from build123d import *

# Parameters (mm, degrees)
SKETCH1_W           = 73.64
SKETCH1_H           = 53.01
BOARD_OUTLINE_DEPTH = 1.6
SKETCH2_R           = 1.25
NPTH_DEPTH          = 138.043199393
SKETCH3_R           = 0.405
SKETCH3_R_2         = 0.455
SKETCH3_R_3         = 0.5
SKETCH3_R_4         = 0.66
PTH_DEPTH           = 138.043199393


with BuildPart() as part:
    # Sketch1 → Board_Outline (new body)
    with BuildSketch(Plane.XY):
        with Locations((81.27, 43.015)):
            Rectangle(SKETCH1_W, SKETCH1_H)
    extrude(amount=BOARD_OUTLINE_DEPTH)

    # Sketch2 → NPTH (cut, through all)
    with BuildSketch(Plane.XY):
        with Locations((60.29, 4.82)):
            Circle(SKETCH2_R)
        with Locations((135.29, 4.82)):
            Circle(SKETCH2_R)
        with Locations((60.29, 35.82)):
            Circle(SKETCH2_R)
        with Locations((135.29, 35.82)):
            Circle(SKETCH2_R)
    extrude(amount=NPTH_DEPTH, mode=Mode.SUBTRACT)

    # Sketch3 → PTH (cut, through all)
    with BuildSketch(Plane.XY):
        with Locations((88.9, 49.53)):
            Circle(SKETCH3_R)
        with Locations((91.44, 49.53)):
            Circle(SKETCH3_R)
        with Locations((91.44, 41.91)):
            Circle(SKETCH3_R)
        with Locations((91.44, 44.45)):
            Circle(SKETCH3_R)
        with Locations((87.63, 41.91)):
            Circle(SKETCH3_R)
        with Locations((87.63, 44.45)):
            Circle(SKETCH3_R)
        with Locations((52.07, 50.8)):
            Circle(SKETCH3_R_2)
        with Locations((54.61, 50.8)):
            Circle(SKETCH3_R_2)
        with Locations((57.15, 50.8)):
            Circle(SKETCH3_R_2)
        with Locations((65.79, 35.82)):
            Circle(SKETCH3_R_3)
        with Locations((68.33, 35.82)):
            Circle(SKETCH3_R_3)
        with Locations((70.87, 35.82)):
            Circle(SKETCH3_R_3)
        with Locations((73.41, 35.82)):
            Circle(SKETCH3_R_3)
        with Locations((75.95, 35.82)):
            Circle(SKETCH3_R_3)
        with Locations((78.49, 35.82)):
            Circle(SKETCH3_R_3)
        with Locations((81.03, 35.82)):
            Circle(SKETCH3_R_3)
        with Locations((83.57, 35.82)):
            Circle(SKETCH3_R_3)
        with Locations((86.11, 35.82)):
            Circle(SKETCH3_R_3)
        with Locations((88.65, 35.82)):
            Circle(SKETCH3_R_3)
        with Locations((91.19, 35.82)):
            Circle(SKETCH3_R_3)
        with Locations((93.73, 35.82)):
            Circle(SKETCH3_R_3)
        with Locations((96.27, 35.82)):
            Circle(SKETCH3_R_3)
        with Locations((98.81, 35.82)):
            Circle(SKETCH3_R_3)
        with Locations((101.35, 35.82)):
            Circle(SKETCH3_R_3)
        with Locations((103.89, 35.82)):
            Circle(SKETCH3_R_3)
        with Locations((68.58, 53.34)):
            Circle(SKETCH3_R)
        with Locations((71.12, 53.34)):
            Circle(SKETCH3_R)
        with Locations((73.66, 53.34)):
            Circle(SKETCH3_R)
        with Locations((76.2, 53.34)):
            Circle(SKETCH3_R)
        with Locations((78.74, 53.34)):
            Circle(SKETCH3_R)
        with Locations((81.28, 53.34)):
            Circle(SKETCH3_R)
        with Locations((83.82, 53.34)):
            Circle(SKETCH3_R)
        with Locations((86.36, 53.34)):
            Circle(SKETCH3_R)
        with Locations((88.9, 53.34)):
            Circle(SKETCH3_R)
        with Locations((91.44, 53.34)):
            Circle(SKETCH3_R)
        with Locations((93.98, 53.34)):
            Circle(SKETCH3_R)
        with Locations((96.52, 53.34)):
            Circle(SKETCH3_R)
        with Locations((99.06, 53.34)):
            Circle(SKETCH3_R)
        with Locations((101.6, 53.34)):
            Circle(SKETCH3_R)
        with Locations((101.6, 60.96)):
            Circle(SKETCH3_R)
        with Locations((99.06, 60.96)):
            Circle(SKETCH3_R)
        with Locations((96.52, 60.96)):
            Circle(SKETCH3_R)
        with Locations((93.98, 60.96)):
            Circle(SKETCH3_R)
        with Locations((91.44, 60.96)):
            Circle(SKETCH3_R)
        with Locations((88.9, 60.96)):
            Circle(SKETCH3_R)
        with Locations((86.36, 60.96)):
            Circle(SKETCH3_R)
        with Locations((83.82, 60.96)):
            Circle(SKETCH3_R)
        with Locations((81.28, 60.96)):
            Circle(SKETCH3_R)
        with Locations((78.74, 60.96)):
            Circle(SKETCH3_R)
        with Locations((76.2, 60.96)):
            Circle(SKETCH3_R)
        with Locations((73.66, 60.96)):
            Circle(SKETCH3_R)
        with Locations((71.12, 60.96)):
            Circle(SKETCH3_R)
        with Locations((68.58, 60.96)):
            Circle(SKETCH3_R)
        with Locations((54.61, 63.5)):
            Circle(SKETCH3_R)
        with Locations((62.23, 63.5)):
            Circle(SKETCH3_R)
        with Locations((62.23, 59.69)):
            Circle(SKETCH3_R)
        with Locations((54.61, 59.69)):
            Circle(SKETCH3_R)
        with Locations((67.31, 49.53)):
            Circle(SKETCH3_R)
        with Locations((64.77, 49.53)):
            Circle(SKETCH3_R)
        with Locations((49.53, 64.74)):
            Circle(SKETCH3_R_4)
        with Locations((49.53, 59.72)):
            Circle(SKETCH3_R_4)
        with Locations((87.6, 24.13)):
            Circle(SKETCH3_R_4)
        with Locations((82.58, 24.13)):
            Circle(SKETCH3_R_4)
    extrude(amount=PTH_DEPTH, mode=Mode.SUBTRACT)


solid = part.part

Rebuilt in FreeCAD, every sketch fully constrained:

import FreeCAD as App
import Part
import Sketcher
Q = App.Units.Quantity


def add_polygon(sketch, points):
    """Adds a closed chain of lines whose ends are joined by coincident constraints."""
    first, n = sketch.GeometryCount, len(points)
    for a, b in zip(points, points[1:] + points[:1]):
        sketch.addGeometry(Part.LineSegment(App.Vector(*a, 0), App.Vector(*b, 0)), False)
    for i in range(n):
        sketch.addConstraint(Sketcher.Constraint("Coincident", first + i, 2, first + (i + 1) % n, 1))

doc = App.newDocument("Part")
params = doc.addObject("Spreadsheet::Sheet", "Params")
for row, (alias, value) in enumerate([
    ("sketch1_width", "73.64 mm"),
    ("sketch1_height", "53.01 mm"),
    ("pad1_length", "1.6 mm"),
    ("sketch2_diameter", "2.5 mm"),
    ("sketch3_diameter", "1 mm"),
    ("sketch3_diameter2", "0.81 mm"),
    ("sketch3_diameter3", "0.91 mm"),
    ("sketch3_diameter4", "1.32 mm"),
], start=1):
    params.set(f"A{row}", alias)
    params.set(f"B{row}", "=" + value)
    params.setAlias(f"B{row}", alias)

body = doc.addObject("PartDesign::Body", "Body")

sketch1 = body.newObject("Sketcher::SketchObject", "Sketch")
sketch1.AttachmentSupport = (doc.getObject("XY_Plane"), [""])
sketch1.MapMode = "FlatFace"
add_polygon(sketch1, [(44, 70), (44, 17), (118, 17), (118, 70)])
sketch1.addConstraint([
    Sketcher.Constraint("Vertical", 0),
    Sketcher.Constraint("Horizontal", 1),
    Sketcher.Constraint("Vertical", 2),
    Sketcher.Constraint("Horizontal", 3),
    Sketcher.Constraint("DistanceX", 1, 1, 1, 2, Q("73.64 mm")),
    Sketcher.Constraint("DistanceY", 0, 2, 0, 1, Q("53.01 mm")),
    Sketcher.Constraint("DistanceX", -1, 1, 0, 2, Q("44.45 mm")),
    Sketcher.Constraint("DistanceY", -1, 1, 0, 2, Q("16.51 mm")),
])
sketch1.setExpression("Constraints[8]", "Params.sketch1_width")
sketch1.setExpression("Constraints[9]", "Params.sketch1_height")
pad1 = body.newObject("PartDesign::Pad", "Pad")
pad1.Profile = sketch1
pad1.setExpression("Length", "Params.pad1_length")

sketch2 = body.newObject("Sketcher::SketchObject", "Sketch001")
sketch2.AttachmentSupport = (doc.getObject("XY_Plane"), [""])
sketch2.MapMode = "FlatFace"
sketch2.addGeometry([
    Part.Circle(App.Vector(60.3, 4.8, 0), App.Vector(0, 0, 1), 1.2),
    Part.Circle(App.Vector(135.3, 4.8, 0), App.Vector(0, 0, 1), 1.2),
    Part.Circle(App.Vector(60.3, 35.8, 0), App.Vector(0, 0, 1), 1.2),
    Part.Circle(App.Vector(135.3, 35.8, 0), App.Vector(0, 0, 1), 1.2),
], False)
sketch2.addConstraint([
    Sketcher.Constraint("Equal", 0, 1),
    Sketcher.Constraint("Equal", 1, 2),
    Sketcher.Constraint("Equal", 2, 3),
    Sketcher.Constraint("Horizontal", 0, 3, 1, 3),
    Sketcher.Constraint("Horizontal", 2, 3, 3, 3),
    Sketcher.Constraint("Vertical", 0, 3, 2, 3),
    Sketcher.Constraint("Vertical", 1, 3, 3, 3),
    Sketcher.Constraint("Diameter", 0, Q("2.5 mm")),
    Sketcher.Constraint("DistanceX", 0, 3, 1, 3, Q("75 mm")),
    Sketcher.Constraint("DistanceY", 0, 3, 2, 3, Q("31 mm")),
    Sketcher.Constraint("DistanceX", -1, 1, 0, 3, Q("60.29 mm")),
    Sketcher.Constraint("DistanceY", -1, 1, 0, 3, Q("4.82 mm")),
])
sketch2.setExpression("Constraints[7]", "Params.sketch2_diameter")
pocket1 = body.newObject("PartDesign::Pocket", "Pocket")
pocket1.Profile = sketch2
pocket1.Type = "ThroughAll"
pocket1.Reversed = True

sketch3 = body.newObject("Sketcher::SketchObject", "Sketch002")
sketch3.AttachmentSupport = (doc.getObject("XY_Plane"), [""])
sketch3.MapMode = "FlatFace"
sketch3.addGeometry([
    Part.Circle(App.Vector(88.9, 49.53, 0), App.Vector(0, 0, 1), 0.41),
    Part.Circle(App.Vector(91.44, 49.53, 0), App.Vector(0, 0, 1), 0.41),
    Part.Circle(App.Vector(91.44, 41.91, 0), App.Vector(0, 0, 1), 0.41),
    Part.Circle(App.Vector(91.44, 44.45, 0), App.Vector(0, 0, 1), 0.41),
    Part.Circle(App.Vector(87.63, 41.91, 0), App.Vector(0, 0, 1), 0.41),
    Part.Circle(App.Vector(87.63, 44.45, 0), App.Vector(0, 0, 1), 0.41),
    Part.Circle(App.Vector(52.07, 50.8, 0), App.Vector(0, 0, 1), 0.46),
    Part.Circle(App.Vector(54.61, 50.8, 0), App.Vector(0, 0, 1), 0.46),
    Part.Circle(App.Vector(57.15, 50.8, 0), App.Vector(0, 0, 1), 0.46),
    Part.Circle(App.Vector(65.79, 35.82, 0), App.Vector(0, 0, 1), 0.5),
    Part.Circle(App.Vector(68.33, 35.82, 0), App.Vector(0, 0, 1), 0.5),
    Part.Circle(App.Vector(70.87, 35.82, 0), App.Vector(0, 0, 1), 0.5),
    Part.Circle(App.Vector(73.41, 35.82, 0), App.Vector(0, 0, 1), 0.5),
    Part.Circle(App.Vector(75.95, 35.82, 0), App.Vector(0, 0, 1), 0.5),
    Part.Circle(App.Vector(78.49, 35.82, 0), App.Vector(0, 0, 1), 0.5),
    Part.Circle(App.Vector(81.03, 35.82, 0), App.Vector(0, 0, 1), 0.5),
    Part.Circle(App.Vector(83.57, 35.82, 0), App.Vector(0, 0, 1), 0.5),
    Part.Circle(App.Vector(86.11, 35.82, 0), App.Vector(0, 0, 1), 0.5),
    Part.Circle(App.Vector(88.65, 35.82, 0), App.Vector(0, 0, 1), 0.5),
    Part.Circle(App.Vector(91.19, 35.82, 0), App.Vector(0, 0, 1), 0.5),
    Part.Circle(App.Vector(93.73, 35.82, 0), App.Vector(0, 0, 1), 0.5),
    Part.Circle(App.Vector(96.27, 35.82, 0), App.Vector(0, 0, 1), 0.5),
    Part.Circle(App.Vector(98.81, 35.82, 0), App.Vector(0, 0, 1), 0.5),
    Part.Circle(App.Vector(101.35, 35.82, 0), App.Vector(0, 0, 1), 0.5),
    Part.Circle(App.Vector(103.89, 35.82, 0), App.Vector(0, 0, 1), 0.5),
    Part.Circle(App.Vector(68.58, 53.34, 0), App.Vector(0, 0, 1), 0.41),
    Part.Circle(App.Vector(71.12, 53.34, 0), App.Vector(0, 0, 1), 0.41),
    Part.Circle(App.Vector(73.66, 53.34, 0), App.Vector(0, 0, 1), 0.41),
    Part.Circle(App.Vector(76.2, 53.34, 0), App.Vector(0, 0, 1), 0.41),
    Part.Circle(App.Vector(78.74, 53.34, 0), App.Vector(0, 0, 1), 0.41),
    Part.Circle(App.Vector(81.28, 53.34, 0), App.Vector(0, 0, 1), 0.41),
    Part.Circle(App.Vector(83.82, 53.34, 0), App.Vector(0, 0, 1), 0.41),
    Part.Circle(App.Vector(86.36, 53.34, 0), App.Vector(0, 0, 1), 0.41),
    Part.Circle(App.Vector(88.9, 53.34, 0), App.Vector(0, 0, 1), 0.41),
    Part.Circle(App.Vector(91.44, 53.34, 0), App.Vector(0, 0, 1), 0.41),
    Part.Circle(App.Vector(93.98, 53.34, 0), App.Vector(0, 0, 1), 0.41),
    Part.Circle(App.Vector(96.52, 53.34, 0), App.Vector(0, 0, 1), 0.41),
    Part.Circle(App.Vector(99.06, 53.34, 0), App.Vector(0, 0, 1), 0.41),
    Part.Circle(App.Vector(101.6, 53.34, 0), App.Vector(0, 0, 1), 0.41),
    Part.Circle(App.Vector(101.6, 60.96, 0), App.Vector(0, 0, 1), 0.41),
    Part.Circle(App.Vector(99.06, 60.96, 0), App.Vector(0, 0, 1), 0.41),
    Part.Circle(App.Vector(96.52, 60.96, 0), App.Vector(0, 0, 1), 0.41),
    Part.Circle(App.Vector(93.98, 60.96, 0), App.Vector(0, 0, 1), 0.41),
    Part.Circle(App.Vector(91.44, 60.96, 0), App.Vector(0, 0, 1), 0.41),
    Part.Circle(App.Vector(88.9, 60.96, 0), App.Vector(0, 0, 1), 0.41),
    Part.Circle(App.Vector(86.36, 60.96, 0), App.Vector(0, 0, 1), 0.41),
    Part.Circle(App.Vector(83.82, 60.96, 0), App.Vector(0, 0, 1), 0.41),
    Part.Circle(App.Vector(81.28, 60.96, 0), App.Vector(0, 0, 1), 0.41),
    Part.Circle(App.Vector(78.74, 60.96, 0), App.Vector(0, 0, 1), 0.41),
    Part.Circle(App.Vector(76.2, 60.96, 0), App.Vector(0, 0, 1), 0.41),
    Part.Circle(App.Vector(73.66, 60.96, 0), App.Vector(0, 0, 1), 0.41),
    Part.Circle(App.Vector(71.12, 60.96, 0), App.Vector(0, 0, 1), 0.41),
    Part.Circle(App.Vector(68.58, 60.96, 0), App.Vector(0, 0, 1), 0.41),
    Part.Circle(App.Vector(54.61, 63.5, 0), App.Vector(0, 0, 1), 0.41),
    Part.Circle(App.Vector(62.23, 63.5, 0), App.Vector(0, 0, 1), 0.41),
    Part.Circle(App.Vector(62.23, 59.69, 0), App.Vector(0, 0, 1), 0.41),
    Part.Circle(App.Vector(54.61, 59.69, 0), App.Vector(0, 0, 1), 0.41),
    Part.Circle(App.Vector(67.31, 49.53, 0), App.Vector(0, 0, 1), 0.41),
    Part.Circle(App.Vector(64.77, 49.53, 0), App.Vector(0, 0, 1), 0.41),
    Part.Circle(App.Vector(49.53, 64.74, 0), App.Vector(0, 0, 1), 0.66),
    Part.Circle(App.Vector(49.53, 59.72, 0), App.Vector(0, 0, 1), 0.66),
    Part.Circle(App.Vector(87.6, 24.13, 0), App.Vector(0, 0, 1), 0.66),
    Part.Circle(App.Vector(82.58, 24.13, 0), App.Vector(0, 0, 1), 0.66),
], False)
sketch3.addConstraint([
    Sketcher.Constraint("Equal", 0, 1),
    Sketcher.Constraint("Equal", 1, 2),
    Sketcher.Constraint("Equal", 2, 3),
    Sketcher.Constraint("Equal", 3, 4),
    Sketcher.Constraint("Equal", 4, 5),
    Sketcher.Constraint("Equal", 6, 7),
    Sketcher.Constraint("Equal", 7, 8),
    Sketcher.Constraint("Equal", 9, 10),
    Sketcher.Constraint("Equal", 10, 11),
    Sketcher.Constraint("Equal", 11, 12),
    Sketcher.Constraint("Equal", 12, 13),
    Sketcher.Constraint("Equal", 13, 14),
    Sketcher.Constraint("Equal", 14, 15),
    Sketcher.Constraint("Equal", 15, 16),
    Sketcher.Constraint("Equal", 16, 17),
    Sketcher.Constraint("Equal", 17, 18),
    Sketcher.Constraint("Equal", 18, 19),
    Sketcher.Constraint("Equal", 19, 20),
    Sketcher.Constraint("Equal", 20, 21),
    Sketcher.Constraint("Equal", 21, 22),
    Sketcher.Constraint("Equal", 22, 23),
    Sketcher.Constraint("Equal", 23, 24),
    Sketcher.Constraint("Equal", 5, 25),
    Sketcher.Constraint("Equal", 25, 26),
    Sketcher.Constraint("Equal", 26, 27),
    Sketcher.Constraint("Equal", 27, 28),
    Sketcher.Constraint("Equal", 28, 29),
    Sketcher.Constraint("Equal", 29, 30),
    Sketcher.Constraint("Equal", 30, 31),
    Sketcher.Constraint("Equal", 31, 32),
    Sketcher.Constraint("Equal", 32, 33),
    Sketcher.Constraint("Equal", 33, 34),
    Sketcher.Constraint("Equal", 34, 35),
    Sketcher.Constraint("Equal", 35, 36),
    Sketcher.Constraint("Equal", 36, 37),
    Sketcher.Constraint("Equal", 37, 38),
    Sketcher.Constraint("Equal", 38, 39),
    Sketcher.Constraint("Equal", 39, 40),
    Sketcher.Constraint("Equal", 40, 41),
    Sketcher.Constraint("Equal", 41, 42),
    Sketcher.Constraint("Equal", 42, 43),
    Sketcher.Constraint("Equal", 43, 44),
    Sketcher.Constraint("Equal", 44, 45),
    Sketcher.Constraint("Equal", 45, 46),
    Sketcher.Constraint("Equal", 46, 47),
    Sketcher.Constraint("Equal", 47, 48),
    Sketcher.Constraint("Equal", 48, 49),
    Sketcher.Constraint("Equal", 49, 50),
    Sketcher.Constraint("Equal", 50, 51),
    Sketcher.Constraint("Equal", 51, 52),
    Sketcher.Constraint("Equal", 52, 53),
    Sketcher.Constraint("Equal", 53, 54),
    Sketcher.Constraint("Equal", 54, 55),
    Sketcher.Constraint("Equal", 55, 56),
    Sketcher.Constraint("Equal", 56, 57),
    Sketcher.Constraint("Equal", 57, 58),
    Sketcher.Constraint("Equal", 59, 60),
    Sketcher.Constraint("Equal", 60, 61),
    Sketcher.Constraint("Equal", 61, 62),
    Sketcher.Constraint("Horizontal", 0, 3, 1, 3),
    Sketcher.Constraint("Horizontal", 2, 3, 4, 3),
    Sketcher.Constraint("Horizontal", 3, 3, 5, 3),
    Sketcher.Constraint("Horizontal", 6, 3, 7, 3),
    Sketcher.Constraint("Horizontal", 7, 3, 8, 3),
    Sketcher.Constraint("Horizontal", 9, 3, 10, 3),
    Sketcher.Constraint("Horizontal", 10, 3, 11, 3),
    Sketcher.Constraint("Horizontal", 11, 3, 12, 3),
    Sketcher.Constraint("Horizontal", 12, 3, 13, 3),
    Sketcher.Constraint("Horizontal", 13, 3, 14, 3),
    Sketcher.Constraint("Horizontal", 14, 3, 15, 3),
    Sketcher.Constraint("Horizontal", 15, 3, 16, 3),
    Sketcher.Constraint("Horizontal", 16, 3, 17, 3),
    Sketcher.Constraint("Horizontal", 17, 3, 18, 3),
    Sketcher.Constraint("Horizontal", 18, 3, 19, 3),
    Sketcher.Constraint("Horizontal", 19, 3, 20, 3),
    Sketcher.Constraint("Horizontal", 20, 3, 21, 3),
    Sketcher.Constraint("Horizontal", 21, 3, 22, 3),
    Sketcher.Constraint("Horizontal", 22, 3, 23, 3),
    Sketcher.Constraint("Horizontal", 23, 3, 24, 3),
    Sketcher.Constraint("Horizontal", 25, 3, 26, 3),
    Sketcher.Constraint("Horizontal", 26, 3, 27, 3),
    Sketcher.Constraint("Horizontal", 27, 3, 28, 3),
    Sketcher.Constraint("Horizontal", 28, 3, 29, 3),
    Sketcher.Constraint("Horizontal", 29, 3, 30, 3),
    Sketcher.Constraint("Horizontal", 30, 3, 31, 3),
    Sketcher.Constraint("Horizontal", 31, 3, 32, 3),
    Sketcher.Constraint("Horizontal", 32, 3, 33, 3),
    Sketcher.Constraint("Horizontal", 33, 3, 34, 3),
    Sketcher.Constraint("Horizontal", 34, 3, 35, 3),
    Sketcher.Constraint("Horizontal", 35, 3, 36, 3),
    Sketcher.Constraint("Horizontal", 36, 3, 37, 3),
    Sketcher.Constraint("Horizontal", 37, 3, 38, 3),
    Sketcher.Constraint("Horizontal", 39, 3, 40, 3),
    Sketcher.Constraint("Horizontal", 40, 3, 41, 3),
    Sketcher.Constraint("Horizontal", 41, 3, 42, 3),
    Sketcher.Constraint("Horizontal", 42, 3, 43, 3),
    Sketcher.Constraint("Horizontal", 43, 3, 44, 3),
    Sketcher.Constraint("Horizontal", 44, 3, 45, 3),
    Sketcher.Constraint("Horizontal", 45, 3, 46, 3),
    Sketcher.Constraint("Horizontal", 46, 3, 47, 3),
    Sketcher.Constraint("Horizontal", 47, 3, 48, 3),
    Sketcher.Constraint("Horizontal", 48, 3, 49, 3),
    Sketcher.Constraint("Horizontal", 49, 3, 50, 3),
    Sketcher.Constraint("Horizontal", 50, 3, 51, 3),
    Sketcher.Constraint("Horizontal", 51, 3, 52, 3),
    Sketcher.Constraint("Horizontal", 53, 3, 54, 3),
    Sketcher.Constraint("Horizontal", 55, 3, 56, 3),
    Sketcher.Constraint("Horizontal", 1, 3, 57, 3),
    Sketcher.Constraint("Horizontal", 57, 3, 58, 3),
    Sketcher.Constraint("Horizontal", 61, 3, 62, 3),
    Sketcher.Constraint("Vertical", 1, 3, 2, 3),
    Sketcher.Constraint("Vertical", 2, 3, 3, 3),
    Sketcher.Constraint("Vertical", 4, 3, 5, 3),
    Sketcher.Constraint("Vertical", 0, 3, 33, 3),
    Sketcher.Constraint("Vertical", 3, 3, 34, 3),
    Sketcher.Constraint("Vertical", 38, 3, 39, 3),
    Sketcher.Constraint("Vertical", 37, 3, 40, 3),
    Sketcher.Constraint("Vertical", 36, 3, 41, 3),
    Sketcher.Constraint("Vertical", 35, 3, 42, 3),
    Sketcher.Constraint("Vertical", 34, 3, 43, 3),
    Sketcher.Constraint("Vertical", 33, 3, 44, 3),
    Sketcher.Constraint("Vertical", 32, 3, 45, 3),
    Sketcher.Constraint("Vertical", 31, 3, 46, 3),
    Sketcher.Constraint("Vertical", 30, 3, 47, 3),
    Sketcher.Constraint("Vertical", 29, 3, 48, 3),
    Sketcher.Constraint("Vertical", 28, 3, 49, 3),
    Sketcher.Constraint("Vertical", 27, 3, 50, 3),
    Sketcher.Constraint("Vertical", 26, 3, 51, 3),
    Sketcher.Constraint("Vertical", 25, 3, 52, 3),
    Sketcher.Constraint("Vertical", 7, 3, 53, 3),
    Sketcher.Constraint("Vertical", 54, 3, 55, 3),
    Sketcher.Constraint("Vertical", 53, 3, 56, 3),
    Sketcher.Constraint("Vertical", 59, 3, 60, 3),
    Sketcher.Constraint("Diameter", 9, Q("1 mm")),
    Sketcher.Constraint("Diameter", 0, Q("0.81 mm")),
    Sketcher.Constraint("Diameter", 6, Q("0.91 mm")),
    Sketcher.Constraint("Diameter", 59, Q("1.32 mm")),
    Sketcher.Constraint("DistanceX", -1, 1, 0, 3, Q("88.9 mm")),
    Sketcher.Constraint("DistanceY", -1, 1, 6, 3, Q("50.8 mm")),
    Sketcher.Constraint("DistanceX", -1, 1, 28, 3, Q("76.2 mm")),
    Sketcher.Constraint("DistanceX", -1, 1, 38, 3, Q("101.6 mm")),
    Sketcher.Constraint("DistanceY", -1, 1, 53, 3, Q("63.5 mm")),
    Sketcher.Constraint("DistanceX", -1, 1, 61, 3, Q("87.6 mm")),
    Sketcher.Constraint("DistanceY", -1, 1, 0, 3, Q("49.53 mm")),
    Sketcher.Constraint("DistanceX", -1, 1, 1, 3, Q("91.44 mm")),
    Sketcher.Constraint("DistanceY", -1, 1, 2, 3, Q("41.91 mm")),
    Sketcher.Constraint("DistanceY", -1, 1, 3, 3, Q("44.45 mm")),
    Sketcher.Constraint("DistanceX", -1, 1, 4, 3, Q("87.63 mm")),
    Sketcher.Constraint("DistanceX", -1, 1, 6, 3, Q("52.07 mm")),
    Sketcher.Constraint("DistanceX", -1, 1, 7, 3, Q("54.61 mm")),
    Sketcher.Constraint("DistanceX", -1, 1, 8, 3, Q("57.15 mm")),
    Sketcher.Constraint("DistanceX", -1, 1, 9, 3, Q("65.79 mm")),
    Sketcher.Constraint("DistanceY", -1, 1, 9, 3, Q("35.82 mm")),
    Sketcher.Constraint("DistanceX", -1, 1, 10, 3, Q("68.33 mm")),
    Sketcher.Constraint("DistanceX", -1, 1, 11, 3, Q("70.87 mm")),
    Sketcher.Constraint("DistanceX", -1, 1, 12, 3, Q("73.41 mm")),
    Sketcher.Constraint("DistanceX", -1, 1, 13, 3, Q("75.95 mm")),
    Sketcher.Constraint("DistanceX", -1, 1, 14, 3, Q("78.49 mm")),
    Sketcher.Constraint("DistanceX", -1, 1, 15, 3, Q("81.03 mm")),
    Sketcher.Constraint("DistanceX", -1, 1, 16, 3, Q("83.57 mm")),
    Sketcher.Constraint("DistanceX", -1, 1, 17, 3, Q("86.11 mm")),
    Sketcher.Constraint("DistanceX", -1, 1, 18, 3, Q("88.65 mm")),
    Sketcher.Constraint("DistanceX", -1, 1, 19, 3, Q("91.19 mm")),
    Sketcher.Constraint("DistanceX", -1, 1, 20, 3, Q("93.73 mm")),
    Sketcher.Constraint("DistanceX", -1, 1, 21, 3, Q("96.27 mm")),
    Sketcher.Constraint("DistanceX", -1, 1, 22, 3, Q("98.81 mm")),
    Sketcher.Constraint("DistanceX", -1, 1, 23, 3, Q("101.35 mm")),
    Sketcher.Constraint("DistanceX", -1, 1, 24, 3, Q("103.89 mm")),
    Sketcher.Constraint("DistanceX", -1, 1, 25, 3, Q("68.58 mm")),
    Sketcher.Constraint("DistanceY", -1, 1, 25, 3, Q("53.34 mm")),
    Sketcher.Constraint("DistanceX", -1, 1, 26, 3, Q("71.12 mm")),
    Sketcher.Constraint("DistanceX", -1, 1, 27, 3, Q("73.66 mm")),
    Sketcher.Constraint("DistanceX", -1, 1, 29, 3, Q("78.74 mm")),
    Sketcher.Constraint("DistanceX", -1, 1, 30, 3, Q("81.28 mm")),
    Sketcher.Constraint("DistanceX", -1, 1, 31, 3, Q("83.82 mm")),
    Sketcher.Constraint("DistanceX", -1, 1, 32, 3, Q("86.36 mm")),
    Sketcher.Constraint("DistanceX", -1, 1, 35, 3, Q("93.98 mm")),
    Sketcher.Constraint("DistanceX", -1, 1, 36, 3, Q("96.52 mm")),
    Sketcher.Constraint("DistanceX", -1, 1, 37, 3, Q("99.06 mm")),
    Sketcher.Constraint("DistanceY", -1, 1, 39, 3, Q("60.96 mm")),
    Sketcher.Constraint("DistanceX", -1, 1, 54, 3, Q("62.23 mm")),
    Sketcher.Constraint("DistanceY", -1, 1, 55, 3, Q("59.69 mm")),
    Sketcher.Constraint("DistanceX", -1, 1, 57, 3, Q("67.31 mm")),
    Sketcher.Constraint("DistanceX", -1, 1, 58, 3, Q("64.77 mm")),
    Sketcher.Constraint("DistanceX", -1, 1, 59, 3, Q("49.53 mm")),
    Sketcher.Constraint("DistanceY", -1, 1, 59, 3, Q("64.74 mm")),
    Sketcher.Constraint("DistanceY", -1, 1, 60, 3, Q("59.72 mm")),
    Sketcher.Constraint("DistanceY", -1, 1, 61, 3, Q("24.13 mm")),
    Sketcher.Constraint("DistanceX", -1, 1, 62, 3, Q("82.58 mm")),
])
sketch3.setExpression("Constraints[133]", "Params.sketch3_diameter")
sketch3.setExpression("Constraints[134]", "Params.sketch3_diameter2")
sketch3.setExpression("Constraints[135]", "Params.sketch3_diameter3")
sketch3.setExpression("Constraints[136]", "Params.sketch3_diameter4")
pocket2 = body.newObject("PartDesign::Pocket", "Pocket001")
pocket2.Profile = sketch3
pocket2.Type = "ThroughAll"
pocket2.Reversed = True

doc.recompute()
